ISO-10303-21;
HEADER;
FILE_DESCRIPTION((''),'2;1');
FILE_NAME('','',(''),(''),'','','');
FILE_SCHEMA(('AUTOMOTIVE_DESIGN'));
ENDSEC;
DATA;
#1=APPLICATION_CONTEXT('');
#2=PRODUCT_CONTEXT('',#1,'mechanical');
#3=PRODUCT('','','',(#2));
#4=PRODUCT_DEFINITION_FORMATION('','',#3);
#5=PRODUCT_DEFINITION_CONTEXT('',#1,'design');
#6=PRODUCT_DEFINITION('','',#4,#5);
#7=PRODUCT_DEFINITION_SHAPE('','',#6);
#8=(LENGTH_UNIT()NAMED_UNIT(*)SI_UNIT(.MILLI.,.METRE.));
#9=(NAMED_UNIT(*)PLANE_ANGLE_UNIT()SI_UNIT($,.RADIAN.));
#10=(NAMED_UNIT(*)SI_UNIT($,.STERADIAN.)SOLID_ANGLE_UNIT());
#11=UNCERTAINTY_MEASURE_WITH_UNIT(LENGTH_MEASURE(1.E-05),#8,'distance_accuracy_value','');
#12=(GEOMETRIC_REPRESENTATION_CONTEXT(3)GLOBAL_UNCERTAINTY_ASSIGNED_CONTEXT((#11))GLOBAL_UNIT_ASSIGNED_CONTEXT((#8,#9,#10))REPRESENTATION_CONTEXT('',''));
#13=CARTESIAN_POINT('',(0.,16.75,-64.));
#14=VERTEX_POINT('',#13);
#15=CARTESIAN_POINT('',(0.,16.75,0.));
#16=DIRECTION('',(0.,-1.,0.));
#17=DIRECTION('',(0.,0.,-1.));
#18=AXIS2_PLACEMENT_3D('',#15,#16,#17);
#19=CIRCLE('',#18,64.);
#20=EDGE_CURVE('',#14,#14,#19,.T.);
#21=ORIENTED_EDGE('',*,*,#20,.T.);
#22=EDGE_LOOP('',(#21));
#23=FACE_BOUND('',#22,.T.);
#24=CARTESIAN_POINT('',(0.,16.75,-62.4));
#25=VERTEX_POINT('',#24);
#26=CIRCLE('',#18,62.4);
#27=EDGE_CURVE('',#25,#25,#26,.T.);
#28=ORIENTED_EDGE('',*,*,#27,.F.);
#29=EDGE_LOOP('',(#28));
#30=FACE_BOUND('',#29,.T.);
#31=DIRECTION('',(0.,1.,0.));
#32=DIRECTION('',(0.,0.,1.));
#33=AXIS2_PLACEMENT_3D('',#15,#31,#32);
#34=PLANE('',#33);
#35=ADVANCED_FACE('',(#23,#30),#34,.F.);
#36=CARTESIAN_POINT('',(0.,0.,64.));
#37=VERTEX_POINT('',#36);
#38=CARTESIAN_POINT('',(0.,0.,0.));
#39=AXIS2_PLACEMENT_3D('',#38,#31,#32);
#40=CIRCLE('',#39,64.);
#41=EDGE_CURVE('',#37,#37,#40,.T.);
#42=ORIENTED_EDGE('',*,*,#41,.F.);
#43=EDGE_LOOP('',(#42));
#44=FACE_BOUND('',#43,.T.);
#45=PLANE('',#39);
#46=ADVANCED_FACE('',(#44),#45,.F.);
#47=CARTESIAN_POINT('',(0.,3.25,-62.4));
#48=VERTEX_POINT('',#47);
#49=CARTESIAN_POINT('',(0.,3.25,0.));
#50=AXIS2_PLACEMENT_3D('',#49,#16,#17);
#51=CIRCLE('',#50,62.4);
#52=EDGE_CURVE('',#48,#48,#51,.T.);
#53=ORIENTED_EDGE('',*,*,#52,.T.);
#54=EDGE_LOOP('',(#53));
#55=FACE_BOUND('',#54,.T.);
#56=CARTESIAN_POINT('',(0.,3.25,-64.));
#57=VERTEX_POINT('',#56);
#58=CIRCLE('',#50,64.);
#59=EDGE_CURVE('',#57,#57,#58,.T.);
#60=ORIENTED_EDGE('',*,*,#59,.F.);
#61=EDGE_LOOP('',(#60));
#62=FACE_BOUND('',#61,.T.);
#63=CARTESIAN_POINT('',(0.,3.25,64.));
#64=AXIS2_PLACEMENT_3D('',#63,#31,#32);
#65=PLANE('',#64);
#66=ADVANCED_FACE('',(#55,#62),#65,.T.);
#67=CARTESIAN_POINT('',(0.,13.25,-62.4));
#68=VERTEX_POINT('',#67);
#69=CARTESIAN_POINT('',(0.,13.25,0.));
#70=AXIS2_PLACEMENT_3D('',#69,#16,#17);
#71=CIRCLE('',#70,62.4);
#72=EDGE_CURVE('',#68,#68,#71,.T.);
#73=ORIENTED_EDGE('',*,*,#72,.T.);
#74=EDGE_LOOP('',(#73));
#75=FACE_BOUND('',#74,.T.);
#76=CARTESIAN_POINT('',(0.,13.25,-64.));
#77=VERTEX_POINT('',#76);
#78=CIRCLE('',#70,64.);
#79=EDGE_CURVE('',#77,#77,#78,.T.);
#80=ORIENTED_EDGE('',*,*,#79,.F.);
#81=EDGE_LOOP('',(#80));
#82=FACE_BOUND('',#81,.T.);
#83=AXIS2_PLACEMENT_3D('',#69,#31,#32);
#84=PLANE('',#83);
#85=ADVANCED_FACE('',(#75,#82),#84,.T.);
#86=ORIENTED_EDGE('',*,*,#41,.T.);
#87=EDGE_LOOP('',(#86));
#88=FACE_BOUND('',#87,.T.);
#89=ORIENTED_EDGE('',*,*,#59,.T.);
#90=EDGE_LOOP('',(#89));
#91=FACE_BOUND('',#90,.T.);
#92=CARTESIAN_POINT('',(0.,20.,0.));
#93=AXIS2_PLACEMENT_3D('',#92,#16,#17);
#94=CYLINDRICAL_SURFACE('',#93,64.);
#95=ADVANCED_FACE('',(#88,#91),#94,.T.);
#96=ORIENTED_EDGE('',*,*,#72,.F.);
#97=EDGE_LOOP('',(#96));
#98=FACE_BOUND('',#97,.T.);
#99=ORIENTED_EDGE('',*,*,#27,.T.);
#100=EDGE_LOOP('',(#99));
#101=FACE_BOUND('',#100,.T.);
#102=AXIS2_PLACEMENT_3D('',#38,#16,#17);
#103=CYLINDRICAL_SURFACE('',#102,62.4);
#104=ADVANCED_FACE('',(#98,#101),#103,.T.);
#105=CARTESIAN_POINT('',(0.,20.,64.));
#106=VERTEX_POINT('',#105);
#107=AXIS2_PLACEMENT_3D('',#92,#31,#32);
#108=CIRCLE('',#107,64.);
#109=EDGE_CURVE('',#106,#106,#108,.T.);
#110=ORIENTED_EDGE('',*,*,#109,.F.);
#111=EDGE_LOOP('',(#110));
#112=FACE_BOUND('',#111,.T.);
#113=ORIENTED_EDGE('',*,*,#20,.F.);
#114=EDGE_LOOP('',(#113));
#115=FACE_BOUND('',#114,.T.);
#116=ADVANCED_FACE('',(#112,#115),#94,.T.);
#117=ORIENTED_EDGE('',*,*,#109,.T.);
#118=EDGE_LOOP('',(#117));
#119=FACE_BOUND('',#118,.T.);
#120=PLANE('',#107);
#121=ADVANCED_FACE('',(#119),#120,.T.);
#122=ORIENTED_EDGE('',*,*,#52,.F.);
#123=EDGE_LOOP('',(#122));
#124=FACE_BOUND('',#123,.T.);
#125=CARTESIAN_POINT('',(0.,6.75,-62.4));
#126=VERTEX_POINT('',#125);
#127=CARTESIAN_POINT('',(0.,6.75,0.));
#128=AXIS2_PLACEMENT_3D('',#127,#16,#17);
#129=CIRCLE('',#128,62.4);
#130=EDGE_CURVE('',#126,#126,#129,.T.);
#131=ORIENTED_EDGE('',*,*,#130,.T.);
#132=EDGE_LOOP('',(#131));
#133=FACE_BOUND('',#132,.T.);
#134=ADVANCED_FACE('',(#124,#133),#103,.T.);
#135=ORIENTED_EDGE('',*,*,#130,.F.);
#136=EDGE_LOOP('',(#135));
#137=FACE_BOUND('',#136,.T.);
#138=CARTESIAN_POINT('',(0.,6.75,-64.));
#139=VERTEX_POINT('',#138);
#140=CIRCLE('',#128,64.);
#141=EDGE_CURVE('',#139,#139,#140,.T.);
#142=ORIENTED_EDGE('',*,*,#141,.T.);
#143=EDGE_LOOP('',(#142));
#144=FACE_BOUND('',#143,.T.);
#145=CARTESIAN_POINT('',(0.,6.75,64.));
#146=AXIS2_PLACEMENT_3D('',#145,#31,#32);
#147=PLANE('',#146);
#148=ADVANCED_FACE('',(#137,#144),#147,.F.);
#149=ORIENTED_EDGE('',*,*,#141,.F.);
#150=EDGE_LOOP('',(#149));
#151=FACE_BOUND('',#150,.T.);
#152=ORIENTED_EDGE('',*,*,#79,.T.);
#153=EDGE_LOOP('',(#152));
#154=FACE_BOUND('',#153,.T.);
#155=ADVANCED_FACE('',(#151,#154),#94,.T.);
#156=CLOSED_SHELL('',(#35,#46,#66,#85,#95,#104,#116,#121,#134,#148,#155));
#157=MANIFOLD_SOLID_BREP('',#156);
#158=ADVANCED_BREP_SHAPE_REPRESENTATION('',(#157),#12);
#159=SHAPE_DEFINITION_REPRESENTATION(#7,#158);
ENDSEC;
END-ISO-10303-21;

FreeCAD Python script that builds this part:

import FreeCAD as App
import Part
import Sketcher

V = App.Vector
Q = App.Units.Quantity


def add_polygon(sketch, points):
    """Adds a closed chain of lines whose ends are joined by coincident constraints."""
    first, n = sketch.GeometryCount, len(points)
    for a, b in zip(points, points[1:] + points[:1]):
        sketch.addGeometry(Part.LineSegment(App.Vector(*a, 0), App.Vector(*b, 0)), False)
    for i in range(n):
        sketch.addConstraint(Sketcher.Constraint("Coincident", first + i, 2, first + (i + 1) % n, 1))

doc = App.newDocument("Part")
body = doc.addObject("PartDesign::Body", "Body")

sketch1 = body.newObject("Sketcher::SketchObject", "Sketch")
sketch1.AttachmentSupport = (doc.getObject("XZ_Plane"), [""])
sketch1.MapMode = "FlatFace"
sketch1.addGeometry(Part.Circle(V(0, 0, 0), V(0, 0, 1), 64), False)
sketch1.addConstraint([
    Sketcher.Constraint("Coincident", 0, 3, -1, 1),
    Sketcher.Constraint("Diameter", 0, Q("128 mm")),
])
pad1 = body.newObject("PartDesign::Pad", "Pad")
pad1.Profile = sketch1
pad1.Length = 20
pad1.Reversed = True

sketch2 = body.newObject("Sketcher::SketchObject", "Sketch001")
sketch2.AttachmentSupport = (doc.getObject("YZ_Plane"), [""])
sketch2.MapMode = "FlatFace"
add_polygon(sketch2, [(16.8, 64), (13.2, 64), (13.2, 62.4), (16.8, 62.4)])
add_polygon(sketch2, [(6.8, 64), (3.2, 64), (3.2, 62.4), (6.8, 62.4)])
sketch2.addConstraint([
    Sketcher.Constraint("Horizontal", 0),
    Sketcher.Constraint("Vertical", 1),
    Sketcher.Constraint("Horizontal", 2),
    Sketcher.Constraint("Vertical", 3),
    Sketcher.Constraint("Horizontal", 4),
    Sketcher.Constraint("Vertical", 5),
    Sketcher.Constraint("Horizontal", 6),
    Sketcher.Constraint("Vertical", 7),
    Sketcher.Constraint("Horizontal", 3, 2, 4, 2),
    Sketcher.Constraint("Horizontal", 2, 2, 5, 2),
    Sketcher.Constraint("Equal", 2, 4),
    Sketcher.Constraint("DistanceX", 0, 2, 0, 1, Q("3.5 mm")),
    Sketcher.Constraint("DistanceY", 1, 2, 1, 1, Q("1.6 mm")),
    Sketcher.Constraint("DistanceY", -1, 1, 0, 2, Q("64 mm")),
    Sketcher.Constraint("DistanceX", 4, 2, 0, 2, Q("10 mm")),
    Sketcher.Constraint("DistanceX", -1, 1, 0, 2, Q("13.25 mm")),
])
groove = body.newObject("PartDesign::Groove", "Groove")
groove.Profile = sketch2
groove.ReferenceAxis = (sketch2, ["H_Axis"])
groove.Angle = 360

doc.recompute()
